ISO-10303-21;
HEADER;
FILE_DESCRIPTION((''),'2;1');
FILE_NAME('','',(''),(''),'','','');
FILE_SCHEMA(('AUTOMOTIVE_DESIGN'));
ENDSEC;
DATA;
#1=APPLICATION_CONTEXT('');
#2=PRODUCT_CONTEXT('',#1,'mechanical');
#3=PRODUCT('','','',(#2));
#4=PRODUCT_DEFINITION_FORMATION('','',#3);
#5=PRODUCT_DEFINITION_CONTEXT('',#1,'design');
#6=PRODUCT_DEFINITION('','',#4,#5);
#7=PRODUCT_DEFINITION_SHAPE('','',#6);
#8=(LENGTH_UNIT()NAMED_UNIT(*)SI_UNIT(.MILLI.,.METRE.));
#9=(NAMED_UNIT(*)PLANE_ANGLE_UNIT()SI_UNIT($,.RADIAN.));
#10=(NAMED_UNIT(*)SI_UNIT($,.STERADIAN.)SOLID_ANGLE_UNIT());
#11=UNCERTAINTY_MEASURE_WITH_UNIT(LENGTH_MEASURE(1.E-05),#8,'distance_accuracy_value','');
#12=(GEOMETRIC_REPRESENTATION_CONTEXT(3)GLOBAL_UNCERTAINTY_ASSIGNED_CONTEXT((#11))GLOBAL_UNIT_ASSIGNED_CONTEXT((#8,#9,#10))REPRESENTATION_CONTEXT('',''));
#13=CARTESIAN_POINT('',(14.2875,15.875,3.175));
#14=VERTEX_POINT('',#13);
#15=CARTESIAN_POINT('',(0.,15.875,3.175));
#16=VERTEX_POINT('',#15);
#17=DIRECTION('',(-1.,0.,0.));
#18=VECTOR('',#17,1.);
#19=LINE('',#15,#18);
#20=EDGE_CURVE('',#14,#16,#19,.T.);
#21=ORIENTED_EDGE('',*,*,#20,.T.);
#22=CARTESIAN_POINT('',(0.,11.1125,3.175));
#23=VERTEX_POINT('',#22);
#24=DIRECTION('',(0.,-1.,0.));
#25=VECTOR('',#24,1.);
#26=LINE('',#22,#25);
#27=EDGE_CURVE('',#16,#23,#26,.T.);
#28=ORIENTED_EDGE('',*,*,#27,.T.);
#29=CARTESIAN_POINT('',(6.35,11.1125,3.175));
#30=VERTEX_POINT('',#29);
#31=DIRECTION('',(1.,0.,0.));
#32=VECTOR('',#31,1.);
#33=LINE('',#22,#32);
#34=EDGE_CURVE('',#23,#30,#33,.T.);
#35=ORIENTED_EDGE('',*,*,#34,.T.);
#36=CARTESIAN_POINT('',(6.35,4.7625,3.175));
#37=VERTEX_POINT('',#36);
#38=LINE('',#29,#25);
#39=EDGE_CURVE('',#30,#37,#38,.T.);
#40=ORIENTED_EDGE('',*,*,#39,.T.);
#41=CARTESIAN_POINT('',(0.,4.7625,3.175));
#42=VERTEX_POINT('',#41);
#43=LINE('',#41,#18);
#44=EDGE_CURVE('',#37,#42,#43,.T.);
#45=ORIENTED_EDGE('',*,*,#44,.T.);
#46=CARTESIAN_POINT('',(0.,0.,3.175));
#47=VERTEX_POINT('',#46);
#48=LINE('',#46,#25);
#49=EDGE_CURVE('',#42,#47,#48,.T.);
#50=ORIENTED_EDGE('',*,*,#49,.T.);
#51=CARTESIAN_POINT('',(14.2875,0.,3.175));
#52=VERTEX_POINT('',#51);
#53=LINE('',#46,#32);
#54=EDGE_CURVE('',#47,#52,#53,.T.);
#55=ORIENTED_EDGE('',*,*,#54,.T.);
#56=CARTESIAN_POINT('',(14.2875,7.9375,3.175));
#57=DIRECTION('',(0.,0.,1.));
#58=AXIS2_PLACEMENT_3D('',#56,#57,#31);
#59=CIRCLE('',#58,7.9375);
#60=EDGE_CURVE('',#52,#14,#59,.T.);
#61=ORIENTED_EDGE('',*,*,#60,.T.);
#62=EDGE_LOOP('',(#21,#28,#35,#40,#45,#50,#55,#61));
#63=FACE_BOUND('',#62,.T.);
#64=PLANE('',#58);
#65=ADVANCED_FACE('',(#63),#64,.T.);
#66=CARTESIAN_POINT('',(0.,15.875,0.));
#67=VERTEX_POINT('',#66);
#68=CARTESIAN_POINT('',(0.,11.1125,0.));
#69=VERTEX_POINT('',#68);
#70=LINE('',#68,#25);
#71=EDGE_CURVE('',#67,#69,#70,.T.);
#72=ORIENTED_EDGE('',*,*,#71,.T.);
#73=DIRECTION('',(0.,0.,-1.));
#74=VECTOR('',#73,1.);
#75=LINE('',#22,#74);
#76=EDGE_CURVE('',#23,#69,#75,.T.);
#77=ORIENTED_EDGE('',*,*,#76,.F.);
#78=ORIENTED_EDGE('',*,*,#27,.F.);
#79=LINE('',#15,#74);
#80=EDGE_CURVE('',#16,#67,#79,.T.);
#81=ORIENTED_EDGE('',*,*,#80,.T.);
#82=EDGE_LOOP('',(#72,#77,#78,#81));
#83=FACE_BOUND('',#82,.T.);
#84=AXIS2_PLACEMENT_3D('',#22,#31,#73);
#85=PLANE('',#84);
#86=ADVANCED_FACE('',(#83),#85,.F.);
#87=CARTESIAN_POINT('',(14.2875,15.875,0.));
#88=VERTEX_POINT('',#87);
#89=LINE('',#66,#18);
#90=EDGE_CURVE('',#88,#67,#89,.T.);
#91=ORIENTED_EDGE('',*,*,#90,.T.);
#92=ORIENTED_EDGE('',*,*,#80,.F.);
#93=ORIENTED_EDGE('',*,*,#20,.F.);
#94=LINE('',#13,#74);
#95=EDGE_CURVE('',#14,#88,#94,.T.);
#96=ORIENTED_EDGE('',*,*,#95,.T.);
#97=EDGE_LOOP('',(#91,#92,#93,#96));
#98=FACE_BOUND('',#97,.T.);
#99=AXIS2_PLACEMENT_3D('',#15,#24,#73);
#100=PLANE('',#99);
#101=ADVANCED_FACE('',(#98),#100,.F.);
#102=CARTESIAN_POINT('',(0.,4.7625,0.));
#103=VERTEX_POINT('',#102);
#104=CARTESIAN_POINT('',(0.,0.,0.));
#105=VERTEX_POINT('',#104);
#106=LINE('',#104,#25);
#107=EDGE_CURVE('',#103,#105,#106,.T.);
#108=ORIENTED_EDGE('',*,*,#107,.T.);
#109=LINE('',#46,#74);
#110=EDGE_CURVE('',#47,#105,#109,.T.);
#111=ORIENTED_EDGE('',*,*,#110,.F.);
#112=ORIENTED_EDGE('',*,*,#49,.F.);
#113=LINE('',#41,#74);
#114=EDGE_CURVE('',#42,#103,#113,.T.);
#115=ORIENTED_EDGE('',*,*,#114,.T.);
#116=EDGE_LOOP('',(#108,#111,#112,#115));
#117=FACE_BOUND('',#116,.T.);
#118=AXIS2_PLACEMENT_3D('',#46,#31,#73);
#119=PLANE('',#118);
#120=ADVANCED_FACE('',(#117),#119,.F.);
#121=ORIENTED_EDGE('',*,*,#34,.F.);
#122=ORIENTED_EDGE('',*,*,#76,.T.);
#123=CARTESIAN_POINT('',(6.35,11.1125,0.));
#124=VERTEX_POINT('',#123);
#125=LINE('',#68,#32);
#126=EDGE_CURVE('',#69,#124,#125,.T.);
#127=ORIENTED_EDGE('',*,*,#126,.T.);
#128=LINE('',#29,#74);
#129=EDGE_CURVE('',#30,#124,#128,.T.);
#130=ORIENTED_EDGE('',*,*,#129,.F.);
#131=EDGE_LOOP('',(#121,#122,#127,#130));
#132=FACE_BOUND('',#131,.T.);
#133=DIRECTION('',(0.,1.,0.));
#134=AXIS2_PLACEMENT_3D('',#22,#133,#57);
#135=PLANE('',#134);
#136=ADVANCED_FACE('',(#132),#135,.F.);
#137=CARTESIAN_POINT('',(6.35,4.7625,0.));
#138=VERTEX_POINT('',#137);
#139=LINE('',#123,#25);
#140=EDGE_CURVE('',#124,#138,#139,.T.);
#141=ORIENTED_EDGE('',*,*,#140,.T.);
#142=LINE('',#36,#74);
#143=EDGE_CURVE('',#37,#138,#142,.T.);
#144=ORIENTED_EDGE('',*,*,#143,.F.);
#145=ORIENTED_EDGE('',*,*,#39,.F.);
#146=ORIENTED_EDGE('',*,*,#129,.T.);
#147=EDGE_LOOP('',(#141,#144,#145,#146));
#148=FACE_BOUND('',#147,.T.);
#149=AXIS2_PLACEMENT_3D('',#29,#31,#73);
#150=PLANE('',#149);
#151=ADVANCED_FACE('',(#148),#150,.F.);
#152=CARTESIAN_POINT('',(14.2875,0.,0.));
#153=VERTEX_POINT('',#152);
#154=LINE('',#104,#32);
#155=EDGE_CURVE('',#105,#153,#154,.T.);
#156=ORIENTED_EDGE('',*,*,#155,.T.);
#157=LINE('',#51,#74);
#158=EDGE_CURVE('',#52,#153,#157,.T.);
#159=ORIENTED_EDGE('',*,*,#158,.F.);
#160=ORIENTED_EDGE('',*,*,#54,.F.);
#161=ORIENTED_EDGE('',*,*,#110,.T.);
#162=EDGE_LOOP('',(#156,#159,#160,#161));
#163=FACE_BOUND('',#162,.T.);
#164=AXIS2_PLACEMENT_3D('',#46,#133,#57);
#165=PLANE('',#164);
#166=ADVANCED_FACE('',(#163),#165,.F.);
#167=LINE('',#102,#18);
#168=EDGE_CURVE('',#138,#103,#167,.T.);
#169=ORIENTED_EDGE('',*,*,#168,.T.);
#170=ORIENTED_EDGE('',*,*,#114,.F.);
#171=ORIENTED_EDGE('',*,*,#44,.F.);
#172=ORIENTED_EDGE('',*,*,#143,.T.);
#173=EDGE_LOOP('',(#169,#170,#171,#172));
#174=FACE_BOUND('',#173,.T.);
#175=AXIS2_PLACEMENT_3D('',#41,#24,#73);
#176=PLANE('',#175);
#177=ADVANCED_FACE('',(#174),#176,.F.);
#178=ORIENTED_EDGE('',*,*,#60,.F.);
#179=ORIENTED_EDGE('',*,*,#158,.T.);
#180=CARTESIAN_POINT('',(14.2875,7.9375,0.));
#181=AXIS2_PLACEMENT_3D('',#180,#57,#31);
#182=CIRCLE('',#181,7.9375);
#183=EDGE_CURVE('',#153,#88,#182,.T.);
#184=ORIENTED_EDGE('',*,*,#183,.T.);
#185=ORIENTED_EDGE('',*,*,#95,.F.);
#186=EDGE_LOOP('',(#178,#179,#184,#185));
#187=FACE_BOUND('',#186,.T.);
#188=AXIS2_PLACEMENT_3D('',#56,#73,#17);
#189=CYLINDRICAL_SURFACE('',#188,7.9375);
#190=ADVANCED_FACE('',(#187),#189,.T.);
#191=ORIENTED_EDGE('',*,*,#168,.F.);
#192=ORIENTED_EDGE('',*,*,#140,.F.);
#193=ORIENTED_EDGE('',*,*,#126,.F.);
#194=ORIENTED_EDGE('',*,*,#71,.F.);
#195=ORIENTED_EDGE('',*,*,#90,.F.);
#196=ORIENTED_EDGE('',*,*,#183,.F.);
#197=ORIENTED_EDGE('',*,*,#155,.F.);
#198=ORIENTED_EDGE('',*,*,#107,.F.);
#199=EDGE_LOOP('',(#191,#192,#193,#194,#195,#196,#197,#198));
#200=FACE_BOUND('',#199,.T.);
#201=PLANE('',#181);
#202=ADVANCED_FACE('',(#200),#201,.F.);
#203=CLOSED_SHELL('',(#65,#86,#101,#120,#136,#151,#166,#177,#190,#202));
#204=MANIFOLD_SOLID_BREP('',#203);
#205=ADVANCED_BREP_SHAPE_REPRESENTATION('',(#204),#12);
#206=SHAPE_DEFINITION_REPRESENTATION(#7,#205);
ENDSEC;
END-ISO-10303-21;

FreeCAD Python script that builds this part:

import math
import FreeCAD as App
import Part
import Sketcher
from FreeCAD import Vector
Q = App.Units.Quantity

doc = App.newDocument("Part")
body = doc.addObject("PartDesign::Body", "Body")

# Sketch on XY plane
sketch1 = body.newObject("Sketcher::SketchObject", "Sketch")
sketch1.AttachmentSupport = (doc.getObject("XY_Plane"), [""])
sketch1.MapMode = "FlatFace"
sketch1.addGeometry([
    Part.LineSegment(Vector(0, 0, 0), Vector(14.3, 0, 0)),  # 0
    Part.ArcOfCircle(Part.Circle(Vector(14.3, 7.9, 0), Vector(0, 0, 1), 7.9), math.radians(-90), math.radians(90)),  # 1
    Part.LineSegment(Vector(14.3, 15.9, 0), Vector(0, 15.9, 0)),  # 2
    Part.LineSegment(Vector(0, 15.9, 0), Vector(0, 11.1, 0)),  # 3
    Part.LineSegment(Vector(0, 11.1, 0), Vector(6.3, 11.1, 0)),  # 4
    Part.LineSegment(Vector(6.3, 11.1, 0), Vector(6.3, 4.8, 0)),  # 5
    Part.LineSegment(Vector(6.3, 4.8, 0), Vector(0, 4.8, 0)),  # 6
    Part.LineSegment(Vector(0, 4.8, 0), Vector(0, 0, 0)),  # 7
], False)
sketch1.addConstraint([
    Sketcher.Constraint("Tangent", 0, 2, 1, 1),
    Sketcher.Constraint("Tangent", 1, 2, 2, 1),
    Sketcher.Constraint("Coincident", 2, 2, 3, 1),
    Sketcher.Constraint("Coincident", 3, 2, 4, 1),
    Sketcher.Constraint("Coincident", 4, 2, 5, 1),
    Sketcher.Constraint("Coincident", 5, 2, 6, 1),
    Sketcher.Constraint("Coincident", 6, 2, 7, 1),
    Sketcher.Constraint("Coincident", 7, 2, 0, 1),
    Sketcher.Constraint("Horizontal", 0),
    Sketcher.Constraint("Horizontal", 2),
    Sketcher.Constraint("Vertical", 3),
    Sketcher.Constraint("Horizontal", 4),
    Sketcher.Constraint("Vertical", 5),
    Sketcher.Constraint("Horizontal", 6),
    Sketcher.Constraint("Vertical", 7),
    Sketcher.Constraint("Coincident", 7, 2, -1, 1),
    Sketcher.Constraint("PointOnObject", 2, 2, -2),
    Sketcher.Constraint("Equal", 6, 5),
    Sketcher.Constraint("Equal", 3, 7),
    Sketcher.Constraint("Radius", 1, Q("0.3125 in")),
    Sketcher.Constraint("DistanceX", 4, 1, 4, 2, Q("0.25 in")),
    Sketcher.Constraint("DistanceX", 0, 1, 0, 2, Q("0.5625 in")),
])
pad1 = body.newObject("PartDesign::Pad", "Pad")
pad1.Profile = sketch1
pad1.Length = Q("0.125 in")

doc.recompute()
